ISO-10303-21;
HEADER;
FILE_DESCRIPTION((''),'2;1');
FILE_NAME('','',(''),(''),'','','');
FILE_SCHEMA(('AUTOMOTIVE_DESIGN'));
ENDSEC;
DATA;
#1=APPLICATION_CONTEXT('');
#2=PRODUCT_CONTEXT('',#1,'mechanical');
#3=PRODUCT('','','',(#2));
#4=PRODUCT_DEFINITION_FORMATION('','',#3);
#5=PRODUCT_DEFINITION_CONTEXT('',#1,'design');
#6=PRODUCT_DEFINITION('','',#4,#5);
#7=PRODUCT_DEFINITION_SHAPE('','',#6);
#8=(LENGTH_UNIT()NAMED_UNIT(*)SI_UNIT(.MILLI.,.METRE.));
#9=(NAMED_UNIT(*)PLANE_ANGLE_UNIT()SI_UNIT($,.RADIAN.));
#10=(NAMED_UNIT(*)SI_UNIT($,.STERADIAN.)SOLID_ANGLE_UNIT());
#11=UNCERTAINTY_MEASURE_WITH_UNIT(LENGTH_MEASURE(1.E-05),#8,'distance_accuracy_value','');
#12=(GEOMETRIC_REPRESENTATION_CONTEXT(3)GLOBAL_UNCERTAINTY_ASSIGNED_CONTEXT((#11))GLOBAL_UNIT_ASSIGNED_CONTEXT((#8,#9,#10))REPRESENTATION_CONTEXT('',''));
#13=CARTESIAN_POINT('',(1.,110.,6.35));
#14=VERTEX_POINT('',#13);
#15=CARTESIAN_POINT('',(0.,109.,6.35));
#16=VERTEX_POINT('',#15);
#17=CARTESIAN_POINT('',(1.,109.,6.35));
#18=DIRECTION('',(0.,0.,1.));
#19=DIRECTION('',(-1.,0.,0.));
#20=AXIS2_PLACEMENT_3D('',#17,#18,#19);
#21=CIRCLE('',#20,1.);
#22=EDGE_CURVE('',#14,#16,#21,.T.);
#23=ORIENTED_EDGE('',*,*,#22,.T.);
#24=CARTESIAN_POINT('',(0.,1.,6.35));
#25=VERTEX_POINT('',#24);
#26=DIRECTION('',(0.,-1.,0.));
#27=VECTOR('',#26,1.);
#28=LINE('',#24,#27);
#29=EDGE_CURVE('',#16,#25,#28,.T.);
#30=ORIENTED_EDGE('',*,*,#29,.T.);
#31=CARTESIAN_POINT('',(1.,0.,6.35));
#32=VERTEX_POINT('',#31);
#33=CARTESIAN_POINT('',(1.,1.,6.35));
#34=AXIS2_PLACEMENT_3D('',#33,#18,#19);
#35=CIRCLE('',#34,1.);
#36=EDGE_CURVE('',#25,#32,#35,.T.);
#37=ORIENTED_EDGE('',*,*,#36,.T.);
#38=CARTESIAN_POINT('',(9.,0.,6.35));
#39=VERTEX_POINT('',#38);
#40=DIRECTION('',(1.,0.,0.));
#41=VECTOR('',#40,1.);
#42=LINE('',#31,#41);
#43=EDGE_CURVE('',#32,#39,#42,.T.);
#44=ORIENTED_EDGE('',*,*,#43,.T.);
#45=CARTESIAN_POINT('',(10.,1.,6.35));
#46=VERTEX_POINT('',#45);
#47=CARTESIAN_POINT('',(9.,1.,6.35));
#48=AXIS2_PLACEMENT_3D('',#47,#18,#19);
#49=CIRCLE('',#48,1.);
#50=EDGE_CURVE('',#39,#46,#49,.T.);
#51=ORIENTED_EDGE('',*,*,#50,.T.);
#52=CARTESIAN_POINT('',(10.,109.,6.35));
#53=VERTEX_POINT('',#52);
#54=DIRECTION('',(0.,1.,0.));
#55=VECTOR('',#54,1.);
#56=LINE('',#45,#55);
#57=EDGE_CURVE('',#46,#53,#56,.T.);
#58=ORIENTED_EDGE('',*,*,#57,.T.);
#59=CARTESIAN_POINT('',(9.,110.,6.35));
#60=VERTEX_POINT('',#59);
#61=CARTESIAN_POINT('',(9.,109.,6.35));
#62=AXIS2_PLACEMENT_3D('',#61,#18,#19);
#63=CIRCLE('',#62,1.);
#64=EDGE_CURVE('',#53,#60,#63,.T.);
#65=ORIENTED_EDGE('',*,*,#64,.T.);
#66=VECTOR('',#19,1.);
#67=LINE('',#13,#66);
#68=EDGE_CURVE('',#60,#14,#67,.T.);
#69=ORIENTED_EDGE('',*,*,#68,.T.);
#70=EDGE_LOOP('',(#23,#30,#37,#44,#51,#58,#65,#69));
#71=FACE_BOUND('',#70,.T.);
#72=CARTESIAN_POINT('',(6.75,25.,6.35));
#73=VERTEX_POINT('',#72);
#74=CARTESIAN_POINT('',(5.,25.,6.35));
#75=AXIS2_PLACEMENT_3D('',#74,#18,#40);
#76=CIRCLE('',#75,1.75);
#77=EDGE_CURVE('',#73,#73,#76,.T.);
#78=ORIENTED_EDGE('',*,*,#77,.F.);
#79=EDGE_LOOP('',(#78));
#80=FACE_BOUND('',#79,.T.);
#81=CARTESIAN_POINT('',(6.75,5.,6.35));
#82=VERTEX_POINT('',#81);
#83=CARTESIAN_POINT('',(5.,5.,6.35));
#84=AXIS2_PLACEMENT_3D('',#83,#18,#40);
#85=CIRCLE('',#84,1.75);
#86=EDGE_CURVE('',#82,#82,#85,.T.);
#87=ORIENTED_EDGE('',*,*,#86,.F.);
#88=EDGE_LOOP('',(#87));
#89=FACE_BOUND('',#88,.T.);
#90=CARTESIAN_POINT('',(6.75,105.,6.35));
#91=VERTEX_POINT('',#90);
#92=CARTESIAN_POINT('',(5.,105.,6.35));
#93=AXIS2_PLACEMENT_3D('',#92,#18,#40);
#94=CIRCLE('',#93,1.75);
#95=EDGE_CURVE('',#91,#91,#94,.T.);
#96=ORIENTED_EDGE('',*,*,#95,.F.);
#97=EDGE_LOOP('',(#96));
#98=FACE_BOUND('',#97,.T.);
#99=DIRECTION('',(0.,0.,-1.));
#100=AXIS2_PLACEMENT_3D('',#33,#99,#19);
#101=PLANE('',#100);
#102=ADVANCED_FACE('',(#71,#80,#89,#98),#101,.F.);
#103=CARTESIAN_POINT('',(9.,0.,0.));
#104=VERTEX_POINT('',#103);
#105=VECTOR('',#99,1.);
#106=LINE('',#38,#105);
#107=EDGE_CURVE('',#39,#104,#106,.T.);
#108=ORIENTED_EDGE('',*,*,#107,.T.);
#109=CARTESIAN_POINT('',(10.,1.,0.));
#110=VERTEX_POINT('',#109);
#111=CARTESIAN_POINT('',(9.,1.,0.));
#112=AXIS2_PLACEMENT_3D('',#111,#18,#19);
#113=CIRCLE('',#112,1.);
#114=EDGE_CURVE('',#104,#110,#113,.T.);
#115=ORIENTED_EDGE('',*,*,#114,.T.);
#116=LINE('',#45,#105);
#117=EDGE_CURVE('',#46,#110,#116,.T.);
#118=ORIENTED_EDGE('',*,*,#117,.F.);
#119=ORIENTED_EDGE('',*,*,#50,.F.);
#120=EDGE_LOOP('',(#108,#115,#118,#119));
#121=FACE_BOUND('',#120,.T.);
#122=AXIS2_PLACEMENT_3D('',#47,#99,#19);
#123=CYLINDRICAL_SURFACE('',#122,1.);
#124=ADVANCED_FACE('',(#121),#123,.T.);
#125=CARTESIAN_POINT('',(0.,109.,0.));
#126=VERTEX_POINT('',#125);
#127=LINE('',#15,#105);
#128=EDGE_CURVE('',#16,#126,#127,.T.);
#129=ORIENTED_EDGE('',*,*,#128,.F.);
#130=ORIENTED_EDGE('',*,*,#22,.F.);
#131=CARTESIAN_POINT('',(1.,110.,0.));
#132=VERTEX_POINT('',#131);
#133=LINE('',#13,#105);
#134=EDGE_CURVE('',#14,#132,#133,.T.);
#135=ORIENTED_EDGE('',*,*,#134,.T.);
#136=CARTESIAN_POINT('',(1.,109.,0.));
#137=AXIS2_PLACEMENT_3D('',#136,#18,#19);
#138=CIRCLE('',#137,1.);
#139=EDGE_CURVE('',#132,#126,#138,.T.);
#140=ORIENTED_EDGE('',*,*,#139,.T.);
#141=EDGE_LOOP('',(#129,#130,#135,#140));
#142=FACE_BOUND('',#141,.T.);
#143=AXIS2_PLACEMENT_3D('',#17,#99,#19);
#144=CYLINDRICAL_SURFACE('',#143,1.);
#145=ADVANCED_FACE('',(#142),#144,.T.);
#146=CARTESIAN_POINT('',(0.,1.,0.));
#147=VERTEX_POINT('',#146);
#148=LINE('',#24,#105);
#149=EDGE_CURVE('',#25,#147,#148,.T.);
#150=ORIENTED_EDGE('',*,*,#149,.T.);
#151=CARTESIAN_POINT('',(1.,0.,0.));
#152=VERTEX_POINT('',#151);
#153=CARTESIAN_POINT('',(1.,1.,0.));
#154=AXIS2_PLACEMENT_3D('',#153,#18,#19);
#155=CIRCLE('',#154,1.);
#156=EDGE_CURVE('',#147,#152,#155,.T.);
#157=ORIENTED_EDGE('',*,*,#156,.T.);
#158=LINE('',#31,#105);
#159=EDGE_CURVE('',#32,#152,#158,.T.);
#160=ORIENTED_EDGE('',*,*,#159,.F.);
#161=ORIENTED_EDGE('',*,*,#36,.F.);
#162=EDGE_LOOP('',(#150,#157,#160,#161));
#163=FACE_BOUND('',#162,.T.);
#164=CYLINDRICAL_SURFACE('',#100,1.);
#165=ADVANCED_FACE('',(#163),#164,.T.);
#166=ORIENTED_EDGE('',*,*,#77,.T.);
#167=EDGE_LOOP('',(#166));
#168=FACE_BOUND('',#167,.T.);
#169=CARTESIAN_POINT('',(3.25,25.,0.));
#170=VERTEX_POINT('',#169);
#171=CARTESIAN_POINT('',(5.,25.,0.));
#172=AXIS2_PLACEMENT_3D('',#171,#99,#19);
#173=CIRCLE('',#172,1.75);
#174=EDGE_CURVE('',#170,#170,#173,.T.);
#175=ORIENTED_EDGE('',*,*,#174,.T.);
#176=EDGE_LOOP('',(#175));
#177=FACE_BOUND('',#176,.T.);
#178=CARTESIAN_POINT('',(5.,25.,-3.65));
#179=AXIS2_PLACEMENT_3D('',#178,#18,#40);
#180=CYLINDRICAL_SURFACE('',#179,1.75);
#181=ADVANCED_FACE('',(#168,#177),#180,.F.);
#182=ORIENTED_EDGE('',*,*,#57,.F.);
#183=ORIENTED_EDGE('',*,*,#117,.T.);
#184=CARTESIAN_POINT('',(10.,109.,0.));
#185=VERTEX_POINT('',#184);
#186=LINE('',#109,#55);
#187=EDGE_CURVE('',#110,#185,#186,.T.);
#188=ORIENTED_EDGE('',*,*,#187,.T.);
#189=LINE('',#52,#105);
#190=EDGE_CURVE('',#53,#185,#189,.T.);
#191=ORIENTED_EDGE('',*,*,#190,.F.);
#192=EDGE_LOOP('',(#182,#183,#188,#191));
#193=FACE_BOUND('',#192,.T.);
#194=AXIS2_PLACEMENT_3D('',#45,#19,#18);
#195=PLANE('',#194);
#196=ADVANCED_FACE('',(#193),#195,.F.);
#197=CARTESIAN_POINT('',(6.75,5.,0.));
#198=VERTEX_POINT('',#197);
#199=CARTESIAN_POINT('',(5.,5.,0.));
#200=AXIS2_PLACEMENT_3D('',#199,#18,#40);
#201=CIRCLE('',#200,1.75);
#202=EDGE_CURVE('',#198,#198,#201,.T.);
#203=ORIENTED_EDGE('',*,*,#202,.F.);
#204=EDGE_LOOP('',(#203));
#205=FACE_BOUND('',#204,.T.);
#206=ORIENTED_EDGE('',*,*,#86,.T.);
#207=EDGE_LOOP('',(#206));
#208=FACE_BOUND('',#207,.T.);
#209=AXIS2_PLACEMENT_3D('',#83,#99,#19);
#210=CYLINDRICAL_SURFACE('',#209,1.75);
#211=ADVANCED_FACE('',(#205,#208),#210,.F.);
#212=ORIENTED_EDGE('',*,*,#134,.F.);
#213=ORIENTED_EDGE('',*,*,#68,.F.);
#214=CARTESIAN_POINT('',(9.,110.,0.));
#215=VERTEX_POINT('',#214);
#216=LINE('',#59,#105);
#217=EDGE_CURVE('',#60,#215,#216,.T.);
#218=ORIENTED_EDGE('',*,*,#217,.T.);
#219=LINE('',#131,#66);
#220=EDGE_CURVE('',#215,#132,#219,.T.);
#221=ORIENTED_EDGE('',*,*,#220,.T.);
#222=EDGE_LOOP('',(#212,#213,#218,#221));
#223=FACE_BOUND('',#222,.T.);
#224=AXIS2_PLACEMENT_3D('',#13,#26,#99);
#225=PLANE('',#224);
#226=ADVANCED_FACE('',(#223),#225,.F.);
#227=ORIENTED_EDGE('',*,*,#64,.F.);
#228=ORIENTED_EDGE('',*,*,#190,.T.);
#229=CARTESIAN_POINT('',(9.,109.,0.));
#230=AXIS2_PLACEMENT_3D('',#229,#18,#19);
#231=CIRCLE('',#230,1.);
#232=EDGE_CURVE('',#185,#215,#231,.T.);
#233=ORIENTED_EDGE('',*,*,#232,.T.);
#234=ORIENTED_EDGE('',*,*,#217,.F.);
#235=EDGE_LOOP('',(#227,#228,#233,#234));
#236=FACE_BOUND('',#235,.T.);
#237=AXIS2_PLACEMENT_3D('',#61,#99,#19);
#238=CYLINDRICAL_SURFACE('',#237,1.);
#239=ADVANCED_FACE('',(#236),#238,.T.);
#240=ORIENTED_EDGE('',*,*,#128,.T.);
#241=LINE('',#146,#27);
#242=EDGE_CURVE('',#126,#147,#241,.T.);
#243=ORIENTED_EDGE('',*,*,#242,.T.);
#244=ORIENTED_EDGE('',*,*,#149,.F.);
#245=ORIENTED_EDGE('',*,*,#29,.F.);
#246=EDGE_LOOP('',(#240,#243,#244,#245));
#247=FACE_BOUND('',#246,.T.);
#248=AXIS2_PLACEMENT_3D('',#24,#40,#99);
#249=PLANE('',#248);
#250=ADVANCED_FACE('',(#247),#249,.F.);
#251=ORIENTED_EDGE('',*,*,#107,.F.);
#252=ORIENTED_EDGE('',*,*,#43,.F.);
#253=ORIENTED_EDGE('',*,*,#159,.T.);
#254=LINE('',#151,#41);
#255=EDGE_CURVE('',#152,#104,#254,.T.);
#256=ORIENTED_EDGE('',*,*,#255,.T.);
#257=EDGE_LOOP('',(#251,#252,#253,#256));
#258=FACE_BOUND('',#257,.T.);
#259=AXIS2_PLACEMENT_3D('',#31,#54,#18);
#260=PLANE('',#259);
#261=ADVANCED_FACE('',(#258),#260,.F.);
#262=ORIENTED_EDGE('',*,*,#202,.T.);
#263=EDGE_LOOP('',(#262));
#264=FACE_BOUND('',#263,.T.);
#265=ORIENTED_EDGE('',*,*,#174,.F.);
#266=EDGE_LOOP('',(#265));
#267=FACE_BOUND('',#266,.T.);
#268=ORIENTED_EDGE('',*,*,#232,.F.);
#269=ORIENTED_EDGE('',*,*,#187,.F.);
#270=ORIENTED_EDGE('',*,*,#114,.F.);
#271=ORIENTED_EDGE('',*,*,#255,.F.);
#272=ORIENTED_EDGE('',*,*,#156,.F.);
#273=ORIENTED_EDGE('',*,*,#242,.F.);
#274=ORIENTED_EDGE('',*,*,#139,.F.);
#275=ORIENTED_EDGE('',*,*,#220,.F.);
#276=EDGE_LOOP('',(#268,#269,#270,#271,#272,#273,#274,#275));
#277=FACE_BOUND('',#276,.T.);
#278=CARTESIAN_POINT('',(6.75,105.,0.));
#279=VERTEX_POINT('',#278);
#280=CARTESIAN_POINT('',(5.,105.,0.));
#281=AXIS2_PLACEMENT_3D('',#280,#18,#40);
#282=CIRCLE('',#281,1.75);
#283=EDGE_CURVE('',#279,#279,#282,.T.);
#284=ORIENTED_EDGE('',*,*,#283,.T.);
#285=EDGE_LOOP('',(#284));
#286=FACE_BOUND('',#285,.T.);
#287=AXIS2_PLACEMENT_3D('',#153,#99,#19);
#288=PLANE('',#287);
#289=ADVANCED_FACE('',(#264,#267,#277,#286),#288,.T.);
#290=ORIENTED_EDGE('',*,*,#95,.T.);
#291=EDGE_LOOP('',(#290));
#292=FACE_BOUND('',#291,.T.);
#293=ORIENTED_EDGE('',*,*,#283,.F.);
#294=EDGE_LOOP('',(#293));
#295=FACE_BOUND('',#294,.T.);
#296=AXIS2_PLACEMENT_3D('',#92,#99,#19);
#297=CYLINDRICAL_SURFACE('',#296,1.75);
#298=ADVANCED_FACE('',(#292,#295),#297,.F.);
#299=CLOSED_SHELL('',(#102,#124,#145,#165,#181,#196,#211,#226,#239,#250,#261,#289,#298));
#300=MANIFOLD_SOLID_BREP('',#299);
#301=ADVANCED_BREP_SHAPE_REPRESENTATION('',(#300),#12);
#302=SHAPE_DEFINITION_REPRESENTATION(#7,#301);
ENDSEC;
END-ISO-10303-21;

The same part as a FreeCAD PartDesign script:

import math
import FreeCAD as App
import Part
import Sketcher

V = App.Vector
Q = App.Units.Quantity

doc = App.newDocument("Part")
body = doc.addObject("PartDesign::Body", "Body")

# Sketch on XY plane
sketch1 = body.newObject("Sketcher::SketchObject", "Sketch")
sketch1.AttachmentSupport = (doc.getObject("XY_Plane"), [""])
sketch1.MapMode = "FlatFace"
sketch1.addGeometry(Part.LineSegment(V(0, 109, 0), V(0, 1, 0)), False)
sketch1.addGeometry(Part.ArcOfCircle(Part.Circle(V(1, 1, 0), V(0, 0, 1), 1), math.radians(-180), math.radians(-90)), False)
sketch1.addGeometry(Part.LineSegment(V(1, 0, 0), V(9, 0, 0)), False)
sketch1.addGeometry(Part.ArcOfCircle(Part.Circle(V(9, 1, 0), V(0, 0, 1), 1), math.radians(-90), math.radians(0)), False)
sketch1.addGeometry(Part.LineSegment(V(10, 1, 0), V(10, 109, 0)), False)
sketch1.addGeometry(Part.ArcOfCircle(Part.Circle(V(9, 109, 0), V(0, 0, 1), 1), math.radians(0), math.radians(90)), False)
sketch1.addGeometry(Part.LineSegment(V(9, 110, 0), V(1, 110, 0)), False)
sketch1.addGeometry(Part.ArcOfCircle(Part.Circle(V(1, 109, 0), V(0, 0, 1), 1), math.radians(90), math.radians(180)), False)
sketch1.addGeometry(Part.Circle(V(5, 5, 0), V(0, 0, 1), 1.8), False)
sketch1.addGeometry(Part.Circle(V(5, 105, 0), V(0, 0, 1), 1.8), False)
sketch1.addConstraint(Sketcher.Constraint("Tangent", 0, 2, 1, 1))
sketch1.addConstraint(Sketcher.Constraint("Tangent", 1, 2, 2, 1))
sketch1.addConstraint(Sketcher.Constraint("Tangent", 2, 2, 3, 1))
sketch1.addConstraint(Sketcher.Constraint("Tangent", 3, 2, 4, 1))
sketch1.addConstraint(Sketcher.Constraint("Tangent", 4, 2, 5, 1))
sketch1.addConstraint(Sketcher.Constraint("Tangent", 5, 2, 6, 1))
sketch1.addConstraint(Sketcher.Constraint("Tangent", 6, 2, 7, 1))
sketch1.addConstraint(Sketcher.Constraint("Tangent", 7, 2, 0, 1))
sketch1.addConstraint(Sketcher.Constraint("Vertical", 0))
sketch1.addConstraint(Sketcher.Constraint("Horizontal", 2))
sketch1.addConstraint(Sketcher.Constraint("Vertical", 4))
sketch1.addConstraint(Sketcher.Constraint("Horizontal", 6))
sketch1.addConstraint(Sketcher.Constraint("Equal", 1, 3))
sketch1.addConstraint(Sketcher.Constraint("Equal", 3, 5))
sketch1.addConstraint(Sketcher.Constraint("Equal", 5, 7))
sketch1.addConstraint(Sketcher.Constraint("Equal", 8, 9))
sketch1.addConstraint(Sketcher.Constraint("PointOnObject", 0, 2, -2))
sketch1.addConstraint(Sketcher.Constraint("PointOnObject", 1, 2, -1))
sketch1.addConstraint(Sketcher.Constraint("Vertical", 8, 3, 9, 3))
sketch1.addConstraint(Sketcher.Constraint("Radius", 1, Q("1 mm")))
sketch1.addConstraint(Sketcher.Constraint("Diameter", 8, Q("3.5 mm")))
sketch1.addConstraint(Sketcher.Constraint("DistanceX", 2, 1, 2, 2, Q("8 mm")))
sketch1.addConstraint(Sketcher.Constraint("DistanceY", 0, 2, 0, 1, Q("108 mm")))
sketch1.addConstraint(Sketcher.Constraint("DistanceX", -1, 1, 8, 3, Q("5 mm")))
sketch1.addConstraint(Sketcher.Constraint("DistanceY", -1, 1, 8, 3, Q("5 mm")))
sketch1.addConstraint(Sketcher.Constraint("DistanceY", -1, 1, 9, 3, Q("105 mm")))
pad1 = body.newObject("PartDesign::Pad", "Pad")
pad1.Profile = sketch1
pad1.Length = 6.35

# Sketch on XY plane
sketch2 = body.newObject("Sketcher::SketchObject", "Sketch001")
sketch2.AttachmentSupport = (doc.getObject("XY_Plane"), [""])
sketch2.MapMode = "FlatFace"
sketch2.AttachmentOffset = App.Placement(V(0, 0, 6.35), App.Rotation())
sketch2.addGeometry(Part.Circle(V(5, 25, 0), V(0, 0, 1), 1.8), False)
sketch2.addConstraint(Sketcher.Constraint("Diameter", 0, Q("3.5 mm")))
sketch2.addConstraint(Sketcher.Constraint("DistanceX", -1, 1, 0, 3, Q("5 mm")))
sketch2.addConstraint(Sketcher.Constraint("DistanceY", -1, 1, 0, 3, Q("25 mm")))
pocket1 = body.newObject("PartDesign::Pocket", "Pocket")
pocket1.Profile = sketch2
pocket1.Length = 10

doc.recompute()
